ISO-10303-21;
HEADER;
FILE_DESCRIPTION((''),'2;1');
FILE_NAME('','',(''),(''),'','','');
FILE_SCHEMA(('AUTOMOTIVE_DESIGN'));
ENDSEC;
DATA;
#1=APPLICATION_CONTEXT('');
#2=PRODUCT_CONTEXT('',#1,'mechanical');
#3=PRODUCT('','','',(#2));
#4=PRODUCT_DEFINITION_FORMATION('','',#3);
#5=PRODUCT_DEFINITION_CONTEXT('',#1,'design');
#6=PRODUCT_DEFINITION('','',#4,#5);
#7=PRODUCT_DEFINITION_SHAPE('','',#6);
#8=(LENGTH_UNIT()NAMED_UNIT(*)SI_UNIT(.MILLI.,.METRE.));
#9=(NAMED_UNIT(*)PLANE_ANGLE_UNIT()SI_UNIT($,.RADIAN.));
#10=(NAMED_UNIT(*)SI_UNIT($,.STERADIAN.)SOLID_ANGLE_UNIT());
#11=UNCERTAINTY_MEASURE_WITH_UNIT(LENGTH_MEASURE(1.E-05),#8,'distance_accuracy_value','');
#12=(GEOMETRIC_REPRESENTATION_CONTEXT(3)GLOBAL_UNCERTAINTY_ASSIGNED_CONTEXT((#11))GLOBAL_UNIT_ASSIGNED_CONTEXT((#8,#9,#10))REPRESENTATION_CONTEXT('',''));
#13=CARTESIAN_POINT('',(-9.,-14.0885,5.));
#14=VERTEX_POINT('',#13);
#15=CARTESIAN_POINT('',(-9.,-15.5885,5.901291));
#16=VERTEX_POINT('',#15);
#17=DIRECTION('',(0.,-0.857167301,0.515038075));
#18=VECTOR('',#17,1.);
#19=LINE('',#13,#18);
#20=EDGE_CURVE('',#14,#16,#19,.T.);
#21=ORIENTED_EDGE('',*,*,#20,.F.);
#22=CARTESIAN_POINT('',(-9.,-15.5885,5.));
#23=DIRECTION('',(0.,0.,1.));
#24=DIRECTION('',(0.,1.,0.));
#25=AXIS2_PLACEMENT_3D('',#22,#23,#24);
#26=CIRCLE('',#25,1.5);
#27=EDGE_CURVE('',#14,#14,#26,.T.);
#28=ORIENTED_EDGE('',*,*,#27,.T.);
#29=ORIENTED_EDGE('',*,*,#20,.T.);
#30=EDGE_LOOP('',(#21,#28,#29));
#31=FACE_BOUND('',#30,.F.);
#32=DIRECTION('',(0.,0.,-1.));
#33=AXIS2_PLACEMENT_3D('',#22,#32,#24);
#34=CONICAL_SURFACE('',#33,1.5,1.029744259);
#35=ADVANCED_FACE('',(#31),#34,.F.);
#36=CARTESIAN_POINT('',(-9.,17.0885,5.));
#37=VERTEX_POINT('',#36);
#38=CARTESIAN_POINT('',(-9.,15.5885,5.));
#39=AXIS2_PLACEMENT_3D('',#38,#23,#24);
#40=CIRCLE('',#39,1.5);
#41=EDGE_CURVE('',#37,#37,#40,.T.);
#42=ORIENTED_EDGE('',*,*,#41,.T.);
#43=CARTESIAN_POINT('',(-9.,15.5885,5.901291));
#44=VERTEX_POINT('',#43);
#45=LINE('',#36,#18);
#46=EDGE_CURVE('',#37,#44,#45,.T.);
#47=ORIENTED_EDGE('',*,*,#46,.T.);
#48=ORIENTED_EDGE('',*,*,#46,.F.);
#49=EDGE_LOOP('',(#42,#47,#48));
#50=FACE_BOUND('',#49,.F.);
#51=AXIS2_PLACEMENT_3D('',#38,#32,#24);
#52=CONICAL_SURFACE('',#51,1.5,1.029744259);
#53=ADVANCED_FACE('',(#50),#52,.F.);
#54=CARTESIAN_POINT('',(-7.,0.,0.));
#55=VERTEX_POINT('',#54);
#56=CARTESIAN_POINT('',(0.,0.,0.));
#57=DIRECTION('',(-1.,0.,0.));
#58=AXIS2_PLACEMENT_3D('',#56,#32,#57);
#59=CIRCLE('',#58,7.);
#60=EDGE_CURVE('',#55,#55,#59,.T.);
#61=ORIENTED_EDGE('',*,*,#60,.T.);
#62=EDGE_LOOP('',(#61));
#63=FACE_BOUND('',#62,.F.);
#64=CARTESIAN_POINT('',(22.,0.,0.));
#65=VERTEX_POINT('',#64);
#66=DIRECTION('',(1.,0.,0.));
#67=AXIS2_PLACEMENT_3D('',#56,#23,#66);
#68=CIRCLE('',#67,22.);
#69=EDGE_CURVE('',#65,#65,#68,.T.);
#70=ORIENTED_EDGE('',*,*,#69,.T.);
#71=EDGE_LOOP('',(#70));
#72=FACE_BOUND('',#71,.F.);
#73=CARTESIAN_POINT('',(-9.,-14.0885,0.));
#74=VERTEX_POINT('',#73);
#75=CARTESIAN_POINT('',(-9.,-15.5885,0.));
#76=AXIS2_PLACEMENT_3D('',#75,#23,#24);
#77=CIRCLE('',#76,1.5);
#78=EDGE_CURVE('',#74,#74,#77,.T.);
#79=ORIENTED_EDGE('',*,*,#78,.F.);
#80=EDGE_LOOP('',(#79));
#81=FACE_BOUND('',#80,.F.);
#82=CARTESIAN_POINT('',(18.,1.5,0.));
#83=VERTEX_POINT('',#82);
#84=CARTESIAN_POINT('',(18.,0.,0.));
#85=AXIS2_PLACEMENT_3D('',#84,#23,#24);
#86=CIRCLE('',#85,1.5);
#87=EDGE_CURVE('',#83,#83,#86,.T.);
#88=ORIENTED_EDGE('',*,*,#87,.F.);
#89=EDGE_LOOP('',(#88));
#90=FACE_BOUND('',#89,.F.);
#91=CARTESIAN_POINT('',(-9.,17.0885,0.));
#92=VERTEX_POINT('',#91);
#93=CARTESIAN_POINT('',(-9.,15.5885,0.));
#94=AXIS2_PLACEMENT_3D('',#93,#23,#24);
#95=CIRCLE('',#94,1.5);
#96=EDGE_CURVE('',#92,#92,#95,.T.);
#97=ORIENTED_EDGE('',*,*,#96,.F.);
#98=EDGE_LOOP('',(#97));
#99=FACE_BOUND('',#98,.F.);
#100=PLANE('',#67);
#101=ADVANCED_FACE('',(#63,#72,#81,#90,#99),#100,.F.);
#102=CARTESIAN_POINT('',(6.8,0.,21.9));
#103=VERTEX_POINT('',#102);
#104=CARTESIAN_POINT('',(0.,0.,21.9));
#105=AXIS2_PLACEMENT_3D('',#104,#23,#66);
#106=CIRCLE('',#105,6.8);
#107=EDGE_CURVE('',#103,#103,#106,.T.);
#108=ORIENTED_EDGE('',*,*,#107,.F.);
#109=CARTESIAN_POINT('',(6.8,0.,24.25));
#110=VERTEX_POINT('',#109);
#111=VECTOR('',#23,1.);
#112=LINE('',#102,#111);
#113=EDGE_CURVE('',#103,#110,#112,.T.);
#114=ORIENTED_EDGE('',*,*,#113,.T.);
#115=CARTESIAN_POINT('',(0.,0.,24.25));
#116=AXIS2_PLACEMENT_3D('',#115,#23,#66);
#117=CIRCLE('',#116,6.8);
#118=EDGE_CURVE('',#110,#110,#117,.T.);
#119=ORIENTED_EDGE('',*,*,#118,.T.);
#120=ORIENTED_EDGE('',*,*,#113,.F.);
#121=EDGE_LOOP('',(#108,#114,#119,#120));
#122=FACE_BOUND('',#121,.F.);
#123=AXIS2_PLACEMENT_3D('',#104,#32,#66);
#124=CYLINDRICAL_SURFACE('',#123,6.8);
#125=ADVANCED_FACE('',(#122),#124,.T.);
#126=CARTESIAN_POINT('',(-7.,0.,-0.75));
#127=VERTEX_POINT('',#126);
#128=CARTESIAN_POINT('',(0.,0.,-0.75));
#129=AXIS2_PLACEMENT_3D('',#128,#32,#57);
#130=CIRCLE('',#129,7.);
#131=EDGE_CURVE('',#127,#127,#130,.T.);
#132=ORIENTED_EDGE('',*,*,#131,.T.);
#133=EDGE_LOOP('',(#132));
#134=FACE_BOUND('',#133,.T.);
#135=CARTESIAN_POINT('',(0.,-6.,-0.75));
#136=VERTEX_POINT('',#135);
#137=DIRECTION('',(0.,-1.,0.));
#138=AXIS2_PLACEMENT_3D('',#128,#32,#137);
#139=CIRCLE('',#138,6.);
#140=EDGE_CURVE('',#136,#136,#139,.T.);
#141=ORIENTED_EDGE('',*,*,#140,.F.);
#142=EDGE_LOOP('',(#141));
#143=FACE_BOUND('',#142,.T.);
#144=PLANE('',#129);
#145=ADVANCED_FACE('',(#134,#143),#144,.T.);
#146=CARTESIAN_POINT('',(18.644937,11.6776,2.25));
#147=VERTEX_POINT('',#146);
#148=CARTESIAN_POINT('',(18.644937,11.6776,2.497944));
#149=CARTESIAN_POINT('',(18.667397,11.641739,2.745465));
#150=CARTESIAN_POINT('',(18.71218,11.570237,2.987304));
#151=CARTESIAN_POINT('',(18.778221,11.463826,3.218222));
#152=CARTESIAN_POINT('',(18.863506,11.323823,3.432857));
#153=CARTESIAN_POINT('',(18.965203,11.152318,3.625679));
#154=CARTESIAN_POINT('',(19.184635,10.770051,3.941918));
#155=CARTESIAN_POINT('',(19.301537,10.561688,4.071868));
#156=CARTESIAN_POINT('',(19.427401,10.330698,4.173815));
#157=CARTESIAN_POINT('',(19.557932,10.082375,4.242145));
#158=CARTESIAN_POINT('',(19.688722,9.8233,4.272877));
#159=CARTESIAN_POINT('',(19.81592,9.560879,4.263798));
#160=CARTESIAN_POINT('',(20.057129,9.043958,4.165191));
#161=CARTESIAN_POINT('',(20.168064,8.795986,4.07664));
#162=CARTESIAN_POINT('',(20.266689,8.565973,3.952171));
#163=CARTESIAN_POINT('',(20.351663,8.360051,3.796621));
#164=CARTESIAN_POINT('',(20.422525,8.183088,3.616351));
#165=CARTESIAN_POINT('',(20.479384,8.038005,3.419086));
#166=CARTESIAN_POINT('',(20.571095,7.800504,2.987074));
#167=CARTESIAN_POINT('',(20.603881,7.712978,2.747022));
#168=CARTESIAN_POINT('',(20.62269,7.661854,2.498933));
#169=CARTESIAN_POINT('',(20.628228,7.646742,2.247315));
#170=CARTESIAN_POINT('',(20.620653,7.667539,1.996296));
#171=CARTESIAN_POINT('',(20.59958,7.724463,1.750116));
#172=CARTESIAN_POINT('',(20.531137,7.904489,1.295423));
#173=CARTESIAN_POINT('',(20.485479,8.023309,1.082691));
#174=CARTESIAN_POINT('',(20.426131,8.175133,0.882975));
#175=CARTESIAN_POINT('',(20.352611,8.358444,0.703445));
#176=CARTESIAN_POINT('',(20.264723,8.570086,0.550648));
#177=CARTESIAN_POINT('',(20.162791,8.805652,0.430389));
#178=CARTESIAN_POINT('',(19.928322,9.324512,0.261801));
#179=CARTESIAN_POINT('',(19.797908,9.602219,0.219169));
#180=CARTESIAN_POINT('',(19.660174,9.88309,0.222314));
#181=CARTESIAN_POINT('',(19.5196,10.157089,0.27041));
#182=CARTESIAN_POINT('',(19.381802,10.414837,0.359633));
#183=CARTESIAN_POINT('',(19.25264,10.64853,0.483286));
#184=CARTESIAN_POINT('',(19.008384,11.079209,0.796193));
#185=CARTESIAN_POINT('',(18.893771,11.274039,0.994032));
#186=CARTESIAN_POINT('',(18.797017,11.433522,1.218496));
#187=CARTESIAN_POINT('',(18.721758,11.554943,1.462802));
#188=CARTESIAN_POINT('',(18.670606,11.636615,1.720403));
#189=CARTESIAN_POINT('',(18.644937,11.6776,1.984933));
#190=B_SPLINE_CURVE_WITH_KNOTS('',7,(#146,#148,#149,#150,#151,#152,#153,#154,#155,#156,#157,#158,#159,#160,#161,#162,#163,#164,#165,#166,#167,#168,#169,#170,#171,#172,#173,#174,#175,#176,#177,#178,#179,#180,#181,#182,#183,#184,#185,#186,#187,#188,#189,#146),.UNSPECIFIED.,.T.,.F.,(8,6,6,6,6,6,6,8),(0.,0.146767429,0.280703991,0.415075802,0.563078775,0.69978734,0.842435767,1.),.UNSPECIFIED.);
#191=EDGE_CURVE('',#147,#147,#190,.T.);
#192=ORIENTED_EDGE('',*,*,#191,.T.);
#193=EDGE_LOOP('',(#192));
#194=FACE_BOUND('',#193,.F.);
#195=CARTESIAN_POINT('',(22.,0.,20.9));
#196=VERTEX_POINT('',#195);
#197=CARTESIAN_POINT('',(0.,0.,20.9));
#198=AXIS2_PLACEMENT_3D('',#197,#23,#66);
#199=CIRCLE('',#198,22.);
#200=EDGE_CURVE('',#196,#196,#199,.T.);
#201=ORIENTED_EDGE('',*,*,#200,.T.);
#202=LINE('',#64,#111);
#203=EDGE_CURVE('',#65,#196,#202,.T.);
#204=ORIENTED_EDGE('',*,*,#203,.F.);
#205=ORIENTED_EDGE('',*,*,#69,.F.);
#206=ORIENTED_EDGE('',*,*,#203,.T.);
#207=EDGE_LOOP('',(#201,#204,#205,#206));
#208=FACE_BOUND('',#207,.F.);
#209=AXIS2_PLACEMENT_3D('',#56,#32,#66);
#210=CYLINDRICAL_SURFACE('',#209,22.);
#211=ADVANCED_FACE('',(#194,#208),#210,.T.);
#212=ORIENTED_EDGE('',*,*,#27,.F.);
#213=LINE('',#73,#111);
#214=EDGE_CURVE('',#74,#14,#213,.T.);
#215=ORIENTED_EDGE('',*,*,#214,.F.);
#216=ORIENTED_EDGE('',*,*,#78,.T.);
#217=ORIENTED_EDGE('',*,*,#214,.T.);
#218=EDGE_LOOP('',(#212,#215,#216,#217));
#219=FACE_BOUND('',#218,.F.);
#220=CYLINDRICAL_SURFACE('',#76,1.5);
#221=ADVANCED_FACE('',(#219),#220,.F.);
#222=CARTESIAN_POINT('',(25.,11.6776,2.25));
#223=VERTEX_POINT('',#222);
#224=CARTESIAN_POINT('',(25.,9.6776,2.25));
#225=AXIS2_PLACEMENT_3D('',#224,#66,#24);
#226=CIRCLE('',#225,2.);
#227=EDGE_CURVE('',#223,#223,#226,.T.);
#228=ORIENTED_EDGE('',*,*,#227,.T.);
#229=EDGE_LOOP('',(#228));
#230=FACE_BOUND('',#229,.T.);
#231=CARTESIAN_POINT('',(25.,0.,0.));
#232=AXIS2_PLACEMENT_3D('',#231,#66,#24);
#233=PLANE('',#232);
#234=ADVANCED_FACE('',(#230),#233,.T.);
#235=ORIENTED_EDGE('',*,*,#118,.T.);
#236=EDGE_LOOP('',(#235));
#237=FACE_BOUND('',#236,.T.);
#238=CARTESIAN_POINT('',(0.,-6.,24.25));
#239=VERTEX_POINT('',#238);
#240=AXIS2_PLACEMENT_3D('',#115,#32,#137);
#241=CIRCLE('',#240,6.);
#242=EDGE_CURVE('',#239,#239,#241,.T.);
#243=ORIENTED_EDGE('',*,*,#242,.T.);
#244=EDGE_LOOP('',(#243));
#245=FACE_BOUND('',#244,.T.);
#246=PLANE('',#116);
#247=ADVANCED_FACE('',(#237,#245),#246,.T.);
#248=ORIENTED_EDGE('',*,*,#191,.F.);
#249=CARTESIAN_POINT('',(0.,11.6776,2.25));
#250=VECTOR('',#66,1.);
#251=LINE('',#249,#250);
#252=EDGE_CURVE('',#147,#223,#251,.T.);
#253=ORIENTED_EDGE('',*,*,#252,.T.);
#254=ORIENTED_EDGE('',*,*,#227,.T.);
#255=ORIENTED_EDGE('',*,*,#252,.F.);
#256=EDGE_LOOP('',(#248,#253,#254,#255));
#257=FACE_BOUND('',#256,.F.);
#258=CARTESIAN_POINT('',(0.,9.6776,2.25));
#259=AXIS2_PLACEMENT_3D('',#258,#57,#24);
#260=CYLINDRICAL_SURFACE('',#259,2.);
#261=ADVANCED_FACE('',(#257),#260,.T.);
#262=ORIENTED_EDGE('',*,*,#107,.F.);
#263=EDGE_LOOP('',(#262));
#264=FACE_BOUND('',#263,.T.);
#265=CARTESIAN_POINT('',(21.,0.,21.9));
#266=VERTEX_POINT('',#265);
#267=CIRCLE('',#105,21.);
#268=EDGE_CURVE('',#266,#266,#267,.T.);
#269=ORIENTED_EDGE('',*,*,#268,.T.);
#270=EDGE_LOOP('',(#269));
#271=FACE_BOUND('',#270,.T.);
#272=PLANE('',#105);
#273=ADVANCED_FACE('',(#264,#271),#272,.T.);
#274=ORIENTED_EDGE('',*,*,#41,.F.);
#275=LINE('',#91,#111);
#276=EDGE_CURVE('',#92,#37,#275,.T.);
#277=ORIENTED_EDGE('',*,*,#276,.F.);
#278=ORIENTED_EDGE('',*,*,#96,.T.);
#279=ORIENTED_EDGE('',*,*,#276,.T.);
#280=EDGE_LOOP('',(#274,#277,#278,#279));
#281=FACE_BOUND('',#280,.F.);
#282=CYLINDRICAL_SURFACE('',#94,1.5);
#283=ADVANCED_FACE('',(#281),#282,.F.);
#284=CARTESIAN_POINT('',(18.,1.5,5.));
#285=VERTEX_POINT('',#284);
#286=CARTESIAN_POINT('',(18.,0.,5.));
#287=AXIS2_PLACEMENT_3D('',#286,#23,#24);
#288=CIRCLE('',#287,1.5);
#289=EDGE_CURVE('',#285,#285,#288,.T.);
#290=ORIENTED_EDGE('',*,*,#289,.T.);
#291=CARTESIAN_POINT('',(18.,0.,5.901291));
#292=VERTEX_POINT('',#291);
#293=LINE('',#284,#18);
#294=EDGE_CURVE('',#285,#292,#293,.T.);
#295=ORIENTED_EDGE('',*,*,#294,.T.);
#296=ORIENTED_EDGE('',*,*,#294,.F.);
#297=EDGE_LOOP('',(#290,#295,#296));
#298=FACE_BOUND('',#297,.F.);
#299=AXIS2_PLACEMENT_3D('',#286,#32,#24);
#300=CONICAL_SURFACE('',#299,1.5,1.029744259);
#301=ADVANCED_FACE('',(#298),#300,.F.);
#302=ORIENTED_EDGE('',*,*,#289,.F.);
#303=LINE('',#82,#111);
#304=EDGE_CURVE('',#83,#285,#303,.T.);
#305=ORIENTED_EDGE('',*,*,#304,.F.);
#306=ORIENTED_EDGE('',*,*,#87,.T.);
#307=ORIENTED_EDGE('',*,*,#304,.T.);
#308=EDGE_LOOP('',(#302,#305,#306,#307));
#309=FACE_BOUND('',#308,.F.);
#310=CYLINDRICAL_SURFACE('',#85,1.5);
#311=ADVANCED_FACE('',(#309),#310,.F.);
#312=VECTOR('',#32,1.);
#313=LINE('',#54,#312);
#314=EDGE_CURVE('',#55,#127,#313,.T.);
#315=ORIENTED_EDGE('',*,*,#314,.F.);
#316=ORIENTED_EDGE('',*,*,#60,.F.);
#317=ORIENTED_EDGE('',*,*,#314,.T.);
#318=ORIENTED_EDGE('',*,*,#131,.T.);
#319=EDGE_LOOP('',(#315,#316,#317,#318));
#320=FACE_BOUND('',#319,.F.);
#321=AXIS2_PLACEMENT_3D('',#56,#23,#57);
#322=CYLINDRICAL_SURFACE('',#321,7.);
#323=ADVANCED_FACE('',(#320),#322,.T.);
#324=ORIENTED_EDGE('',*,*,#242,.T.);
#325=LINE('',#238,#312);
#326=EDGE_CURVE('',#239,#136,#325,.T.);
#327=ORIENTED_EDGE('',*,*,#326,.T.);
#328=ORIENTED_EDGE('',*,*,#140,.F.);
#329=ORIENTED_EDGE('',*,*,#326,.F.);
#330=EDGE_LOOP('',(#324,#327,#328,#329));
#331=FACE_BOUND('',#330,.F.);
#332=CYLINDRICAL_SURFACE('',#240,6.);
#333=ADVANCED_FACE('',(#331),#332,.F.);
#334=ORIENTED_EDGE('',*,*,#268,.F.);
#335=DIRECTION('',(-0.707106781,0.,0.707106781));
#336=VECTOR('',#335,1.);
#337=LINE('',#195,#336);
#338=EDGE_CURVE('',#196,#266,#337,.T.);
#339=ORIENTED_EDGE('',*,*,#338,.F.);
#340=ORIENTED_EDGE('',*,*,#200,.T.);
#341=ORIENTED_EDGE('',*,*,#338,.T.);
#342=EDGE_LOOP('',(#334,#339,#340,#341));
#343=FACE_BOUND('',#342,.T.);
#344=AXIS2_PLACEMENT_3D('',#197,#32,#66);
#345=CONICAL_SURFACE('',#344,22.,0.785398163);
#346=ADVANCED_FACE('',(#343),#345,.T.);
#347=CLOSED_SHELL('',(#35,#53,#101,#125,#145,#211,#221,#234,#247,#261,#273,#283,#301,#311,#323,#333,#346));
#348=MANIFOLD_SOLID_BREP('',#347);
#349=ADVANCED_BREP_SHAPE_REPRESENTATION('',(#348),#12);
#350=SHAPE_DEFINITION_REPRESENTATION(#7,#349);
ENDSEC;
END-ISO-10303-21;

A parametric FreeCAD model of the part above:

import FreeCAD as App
import Part
import Sketcher


def edges_at(feature, points):
    """Names of the edges that pass closest to the given points."""
    edges = feature.Shape.Edges
    near = lambda p: min(range(len(edges)), key=lambda i: edges[i].distToShape(Part.Vertex(*p))[0])
    return sorted({f"Edge{near(p) + 1}" for p in points})

doc = App.newDocument("Part")
body = doc.addObject("PartDesign::Body", "Body")

sketch1 = doc.addObject("Sketcher::SketchObject", "Sketch")
body.addObject(sketch1)
sketch1.AttachmentSupport = (doc.XY_Plane, [""])
sketch1.MapMode = "FlatFace"
sketch1.addGeometry(Part.Circle(App.Vector(0, 0, 0), App.Vector(0, 0, 1), 22), False)
sketch1.addConstraint([
    Sketcher.Constraint("Coincident", 0, 3, -1, 1),
    Sketcher.Constraint("Diameter", 0, 44.0),
])
pad1 = doc.addObject("PartDesign::Pad", "Pad")
body.addObject(pad1)
pad1.Profile = sketch1
pad1.Length = 21.9
doc.recompute()

chamfer = doc.addObject("PartDesign::Chamfer", "Chamfer")
body.addObject(chamfer)
chamfer.Base = (pad1, edges_at(pad1, [(-22, 0, 21.9)]))
chamfer.Size = 1

sketch2 = doc.addObject("Sketcher::SketchObject", "Sketch001")
body.addObject(sketch2)
sketch2.AttachmentSupport = (doc.XY_Plane, [""])
sketch2.MapMode = "FlatFace"
sketch2.AttachmentOffset = App.Placement(App.Vector(0, 0, 21.9), App.Rotation())
sketch2.addGeometry(Part.Circle(App.Vector(0, 0, 0), App.Vector(0, 0, 1), 6.8), False)
sketch2.addConstraint([
    Sketcher.Constraint("Coincident", 0, 3, -1, 1),
    Sketcher.Constraint("Diameter", 0, 13.6),
])
pad2 = doc.addObject("PartDesign::Pad", "Pad001")
body.addObject(pad2)
pad2.Profile = sketch2
pad2.Length = 2.35

sketch3 = doc.addObject("Sketcher::SketchObject", "Sketch002")
body.addObject(sketch3)
sketch3.AttachmentSupport = (doc.YZ_Plane, [""])
sketch3.MapMode = "FlatFace"
sketch3.addGeometry(Part.Circle(App.Vector(9.6776, 2.25, 0), App.Vector(0, 0, 1), 2), False)
sketch3.addConstraint([
    Sketcher.Constraint("Diameter", 0, 4.0),
    Sketcher.Constraint("DistanceY", -1, 1, 0, 3, 2.25),
    Sketcher.Constraint("DistanceX", -1, 1, 0, 3, 9.6776),
])
pad3 = doc.addObject("PartDesign::Pad", "Pad002")
body.addObject(pad3)
pad3.Profile = sketch3
pad3.Length = 25

sketch4 = doc.addObject("Sketcher::SketchObject", "Sketch003")
body.addObject(sketch4)
sketch4.AttachmentSupport = (doc.XY_Plane, [""])
sketch4.MapMode = "FlatFace"
sketch4.addGeometry(Part.Circle(App.Vector(0, 0, 0), App.Vector(0, 0, 1), 7), False)
sketch4.addConstraint([
    Sketcher.Constraint("Coincident", 0, 3, -1, 1),
    Sketcher.Constraint("Diameter", 0, 14.0),
])
pad4 = doc.addObject("PartDesign::Pad", "Pad003")
body.addObject(pad4)
pad4.Profile = sketch4
pad4.Length = 0.75
pad4.Reversed = True

sketch5 = doc.addObject("Sketcher::SketchObject", "Sketch004")
body.addObject(sketch5)
sketch5.AttachmentSupport = (doc.XY_Plane, [""])
sketch5.MapMode = "FlatFace"
sketch5.AttachmentOffset = App.Placement(App.Vector(0, 0, 24.25), App.Rotation())
sketch5.addGeometry(Part.Circle(App.Vector(0, 0, 0), App.Vector(0, 0, 1), 6), False)
sketch5.addConstraint([
    Sketcher.Constraint("Coincident", 0, 3, -1, 1),
    Sketcher.Constraint("Diameter", 0, 12.0),
])
doc.recompute()
hole = doc.addObject("PartDesign::Hole", "Hole")
body.addObject(hole)
hole.Profile = sketch5
hole.ThreadType = "None"
hole.Diameter = 12
hole.DepthType = "ThroughAll"

sketch6 = doc.addObject("Sketcher::SketchObject", "Sketch005")
body.addObject(sketch6)
sketch6.AttachmentSupport = (doc.XY_Plane, [""])
sketch6.MapMode = "FlatFace"
sketch6.addGeometry([
    Part.Circle(App.Vector(18, 0, 0), App.Vector(0, 0, 1), 1.5),
    Part.Circle(App.Vector(-9, -15.5885, 0), App.Vector(0, 0, 1), 1.5),
    Part.Circle(App.Vector(-9, 15.5885, 0), App.Vector(0, 0, 1), 1.5),
], False)
sketch6.addConstraint([
    Sketcher.Constraint("Equal", 0, 1),
    Sketcher.Constraint("Equal", 1, 2),
    Sketcher.Constraint("Symmetric", 1, 3, 2, 3, -1),
    Sketcher.Constraint("PointOnObject", 0, 3, -1),
    Sketcher.Constraint("Diameter", 0, 3.0),
    Sketcher.Constraint("DistanceX", -1, 1, 0, 3, 18.0),
    Sketcher.Constraint("DistanceX", 1, 3, -1, 1, 9.0),
    Sketcher.Constraint("DistanceY", 1, 3, 2, 3, 31.177),
])
doc.recompute()
hole2 = doc.addObject("PartDesign::Hole", "Hole001")
body.addObject(hole2)
hole2.Profile = sketch6
hole2.ThreadType = "None"
hole2.Diameter = 3
hole2.DepthType = "Dimension"
hole2.Depth = 5
hole2.DrillPoint = "Angled"
hole2.DrillPointAngle = 118
hole2.Reversed = True

doc.recompute()
